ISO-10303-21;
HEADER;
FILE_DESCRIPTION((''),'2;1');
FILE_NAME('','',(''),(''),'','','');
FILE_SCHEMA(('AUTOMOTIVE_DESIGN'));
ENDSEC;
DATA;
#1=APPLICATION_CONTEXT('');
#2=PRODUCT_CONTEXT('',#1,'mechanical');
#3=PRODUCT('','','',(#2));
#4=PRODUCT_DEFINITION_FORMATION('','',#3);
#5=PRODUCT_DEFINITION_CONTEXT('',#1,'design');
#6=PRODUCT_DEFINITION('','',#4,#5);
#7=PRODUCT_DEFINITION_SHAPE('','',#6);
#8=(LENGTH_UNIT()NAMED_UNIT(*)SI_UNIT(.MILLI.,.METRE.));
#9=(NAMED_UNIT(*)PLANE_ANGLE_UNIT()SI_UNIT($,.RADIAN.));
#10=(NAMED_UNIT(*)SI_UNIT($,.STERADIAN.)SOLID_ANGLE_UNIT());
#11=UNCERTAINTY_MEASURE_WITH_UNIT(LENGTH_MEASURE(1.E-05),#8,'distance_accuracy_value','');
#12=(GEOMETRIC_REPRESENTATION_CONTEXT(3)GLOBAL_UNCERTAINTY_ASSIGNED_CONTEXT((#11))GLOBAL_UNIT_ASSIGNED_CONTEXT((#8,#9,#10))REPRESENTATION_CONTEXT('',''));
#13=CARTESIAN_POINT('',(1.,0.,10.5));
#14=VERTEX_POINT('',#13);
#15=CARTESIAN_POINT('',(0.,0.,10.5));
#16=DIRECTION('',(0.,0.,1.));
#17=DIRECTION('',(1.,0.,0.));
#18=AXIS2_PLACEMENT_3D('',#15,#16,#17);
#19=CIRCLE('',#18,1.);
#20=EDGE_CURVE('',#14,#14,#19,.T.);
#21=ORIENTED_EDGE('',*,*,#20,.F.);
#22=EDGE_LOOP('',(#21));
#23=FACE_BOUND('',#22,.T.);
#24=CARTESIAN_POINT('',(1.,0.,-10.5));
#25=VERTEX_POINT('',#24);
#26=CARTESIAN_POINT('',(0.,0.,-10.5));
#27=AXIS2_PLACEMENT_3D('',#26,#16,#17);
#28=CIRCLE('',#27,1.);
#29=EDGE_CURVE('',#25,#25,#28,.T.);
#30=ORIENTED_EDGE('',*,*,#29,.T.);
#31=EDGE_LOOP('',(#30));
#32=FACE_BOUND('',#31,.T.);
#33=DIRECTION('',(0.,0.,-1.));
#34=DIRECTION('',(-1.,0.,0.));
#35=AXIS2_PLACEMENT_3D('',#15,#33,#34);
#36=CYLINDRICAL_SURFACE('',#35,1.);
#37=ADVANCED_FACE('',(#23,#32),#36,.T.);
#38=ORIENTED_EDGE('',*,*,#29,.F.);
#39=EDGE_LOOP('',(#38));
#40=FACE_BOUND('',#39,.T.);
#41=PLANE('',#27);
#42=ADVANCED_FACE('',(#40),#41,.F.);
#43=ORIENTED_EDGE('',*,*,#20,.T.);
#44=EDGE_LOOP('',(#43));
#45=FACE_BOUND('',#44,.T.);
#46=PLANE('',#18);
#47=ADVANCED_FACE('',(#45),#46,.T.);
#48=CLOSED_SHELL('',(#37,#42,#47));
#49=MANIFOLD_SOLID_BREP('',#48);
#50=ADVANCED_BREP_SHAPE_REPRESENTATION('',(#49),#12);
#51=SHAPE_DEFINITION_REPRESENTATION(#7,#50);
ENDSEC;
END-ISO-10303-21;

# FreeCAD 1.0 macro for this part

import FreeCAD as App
import Part
import Sketcher

V = App.Vector
Q = App.Units.Quantity

doc = App.newDocument("Part")
params = doc.addObject("Spreadsheet::Sheet", "Params")
for row, (alias, value) in enumerate([
    ("sketch1_diameter", "2 mm"),
    ("pad1_length", "21 mm"),
], start=1):
    params.set(f"A{row}", alias)
    params.set(f"B{row}", "=" + value)
    params.setAlias(f"B{row}", alias)

body = doc.addObject("PartDesign::Body", "Body")

# Sketch on XY plane
sketch1 = doc.addObject("Sketcher::SketchObject", "Sketch")
body.addObject(sketch1)
sketch1.AttachmentSupport = (doc.XY_Plane, [""])
sketch1.MapMode = "FlatFace"
sketch1.addGeometry(Part.Circle(V(0, 0, 0), V(0, 0, 1), 1), False)
sketch1.addConstraint([
    Sketcher.Constraint("Coincident", 0, 3, -1, 1),
    Sketcher.Constraint("Diameter", 0, Q("2 mm")),
])
sketch1.setExpression("Constraints[1]", "Params.sketch1_diameter")
pad1 = doc.addObject("PartDesign::Pad", "Pad")
body.addObject(pad1)
pad1.Profile = sketch1
pad1.setExpression("Length", "Params.pad1_length")
pad1.Midplane = True

doc.recompute()
